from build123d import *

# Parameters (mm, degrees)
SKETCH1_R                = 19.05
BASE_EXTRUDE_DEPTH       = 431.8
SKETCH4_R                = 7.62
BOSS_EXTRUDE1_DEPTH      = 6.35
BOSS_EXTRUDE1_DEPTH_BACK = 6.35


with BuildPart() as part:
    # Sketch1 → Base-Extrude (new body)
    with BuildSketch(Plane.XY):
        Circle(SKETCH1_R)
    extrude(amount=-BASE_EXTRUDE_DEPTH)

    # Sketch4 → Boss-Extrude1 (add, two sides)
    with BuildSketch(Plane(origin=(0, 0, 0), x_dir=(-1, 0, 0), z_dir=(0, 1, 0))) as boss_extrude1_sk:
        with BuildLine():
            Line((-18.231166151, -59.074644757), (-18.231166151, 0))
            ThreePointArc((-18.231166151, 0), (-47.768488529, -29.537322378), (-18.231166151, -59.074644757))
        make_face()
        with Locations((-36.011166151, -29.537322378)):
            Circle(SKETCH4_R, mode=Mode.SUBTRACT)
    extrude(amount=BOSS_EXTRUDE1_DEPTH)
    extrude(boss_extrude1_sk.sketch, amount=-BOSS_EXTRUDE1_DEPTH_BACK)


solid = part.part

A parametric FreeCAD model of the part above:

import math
import FreeCAD as App
import Part
import Sketcher
from FreeCAD import Vector
Q = App.Units.Quantity

doc = App.newDocument("Part")
params = doc.addObject("Spreadsheet::Sheet", "Params")
for row, (alias, value) in enumerate([
    ("sketch1_diameter", "1.5 in"),
    ("pad1_length", "17 in"),
    ("sketch2_diameter", "0.6 in"),
    ("pad2_length", "0.25 in"),
    ("pad2_length2", "0.25 in"),
], start=1):
    params.set(f"A{row}", alias)
    params.set(f"B{row}", "=" + value)
    params.setAlias(f"B{row}", alias)

body = doc.addObject("PartDesign::Body", "Body")

# Sketch on XY plane
sketch1 = body.newObject("Sketcher::SketchObject", "Sketch")
sketch1.AttachmentSupport = (doc.getObject("XY_Plane"), [""])
sketch1.MapMode = "FlatFace"
sketch1.addGeometry(Part.Circle(Vector(0, 0, 0), Vector(0, 0, 1), 19), False)
sketch1.addConstraint([
    Sketcher.Constraint("Coincident", 0, 3, -1, 1),
    Sketcher.Constraint("Diameter", 0, Q("1.5 in")),
])
sketch1.setExpression("Constraints[1]", "Params.sketch1_diameter")
pad1 = body.newObject("PartDesign::Pad", "Pad")
pad1.Profile = sketch1
pad1.setExpression("Length", "Params.pad1_length")
pad1.Reversed = True

# Sketch on XZ plane
sketch2 = body.newObject("Sketcher::SketchObject", "Sketch001")
sketch2.AttachmentSupport = (doc.getObject("XZ_Plane"), [""])
sketch2.MapMode = "FlatFace"
sketch2.addGeometry([
    Part.LineSegment(Vector(18, -59, 0), Vector(18, 0, 0)),
    Part.ArcOfCircle(Part.Circle(Vector(18, -30, 0), Vector(0, 0, 1), 30), math.radians(-90), math.radians(90)),
    Part.Circle(Vector(36, -30, 0), Vector(0, 0, 1), 8),
], False)
sketch2.addConstraint([
    Sketcher.Constraint("Coincident", 0, 1, 1, 1),
    Sketcher.Constraint("Coincident", 1, 2, 0, 2),
    Sketcher.Constraint("Vertical", 0),
    Sketcher.Constraint("PointOnObject", 1, 2, -1),
    Sketcher.Constraint("Horizontal", 1, 3, 2, 3),
    Sketcher.Constraint("Vertical", 1, 3, 0, 1),
    Sketcher.Constraint("Diameter", 2, Q("0.6 in")),
    Sketcher.Constraint("DistanceX", 1, 3, 2, 3, Q("0.7 in")),
    Sketcher.Constraint("Radius", 1, Q("29.537322 mm")),
    Sketcher.Constraint("DistanceX", -1, 1, 1, 3, Q("18.231166 mm")),
])
sketch2.setExpression("Constraints[6]", "Params.sketch2_diameter")
pad2 = body.newObject("PartDesign::Pad", "Pad001")
pad2.Profile = sketch2
pad2.Type = "TwoLengths"
pad2.setExpression("Length", "Params.pad2_length")
pad2.setExpression("Length2", "Params.pad2_length2")
pad2.Reversed = True

doc.recompute()
